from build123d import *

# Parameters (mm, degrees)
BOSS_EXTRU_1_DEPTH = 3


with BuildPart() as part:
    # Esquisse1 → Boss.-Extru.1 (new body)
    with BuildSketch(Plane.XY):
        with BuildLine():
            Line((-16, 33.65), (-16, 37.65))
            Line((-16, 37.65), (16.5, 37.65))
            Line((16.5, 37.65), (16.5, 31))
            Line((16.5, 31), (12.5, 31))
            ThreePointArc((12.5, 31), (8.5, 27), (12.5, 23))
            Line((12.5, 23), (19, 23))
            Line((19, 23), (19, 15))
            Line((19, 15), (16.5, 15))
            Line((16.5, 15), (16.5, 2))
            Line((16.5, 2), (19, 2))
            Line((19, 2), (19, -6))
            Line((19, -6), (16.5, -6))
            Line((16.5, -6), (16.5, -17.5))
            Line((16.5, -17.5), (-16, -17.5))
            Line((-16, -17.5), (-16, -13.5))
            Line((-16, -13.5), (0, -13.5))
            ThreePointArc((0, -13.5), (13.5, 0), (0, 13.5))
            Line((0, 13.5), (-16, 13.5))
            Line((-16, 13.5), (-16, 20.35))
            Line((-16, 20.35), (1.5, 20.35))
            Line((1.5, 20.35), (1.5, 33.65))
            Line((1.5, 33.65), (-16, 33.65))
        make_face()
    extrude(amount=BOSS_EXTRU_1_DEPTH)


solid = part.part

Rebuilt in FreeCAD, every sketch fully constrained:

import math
import FreeCAD as App
import Part
import Sketcher
Q = App.Units.Quantity

doc = App.newDocument("Part")
body = doc.addObject("PartDesign::Body", "Body")

# Sketch on XY plane
sketch1 = body.newObject("Sketcher::SketchObject", "Sketch")
sketch1.AttachmentSupport = (doc.getObject("XY_Plane"), [""])
sketch1.MapMode = "FlatFace"
sketch1.addGeometry(Part.LineSegment(App.Vector(-16, 37.65, 0), App.Vector(-16, 33.65, 0)), False)
sketch1.addGeometry(Part.LineSegment(App.Vector(-16, 33.65, 0), App.Vector(1.5, 33.65, 0)), False)
sketch1.addGeometry(Part.LineSegment(App.Vector(1.5, 33.65, 0), App.Vector(1.5, 20.35, 0)), False)
sketch1.addGeometry(Part.LineSegment(App.Vector(1.5, 20.35, 0), App.Vector(-16, 20.35, 0)), False)
sketch1.addGeometry(Part.LineSegment(App.Vector(-16, 20.35, 0), App.Vector(-16, 13.5, 0)), False)
sketch1.addGeometry(Part.LineSegment(App.Vector(-16, 13.5, 0), App.Vector(0, 13.5, 0)), False)
sketch1.addGeometry(Part.ArcOfCircle(Part.Circle(App.Vector(0, 0, 0), App.Vector(0, 0, 1), 13.5), math.radians(-90), math.radians(90)), False)
sketch1.addGeometry(Part.LineSegment(App.Vector(0, -13.5, 0), App.Vector(-16, -13.5, 0)), False)
sketch1.addGeometry(Part.LineSegment(App.Vector(-16, -13.5, 0), App.Vector(-16, -17.5, 0)), False)
sketch1.addGeometry(Part.LineSegment(App.Vector(-16, -17.5, 0), App.Vector(16.5, -17.5, 0)), False)
sketch1.addGeometry(Part.LineSegment(App.Vector(16.5, -17.5, 0), App.Vector(16.5, -6, 0)), False)
sketch1.addGeometry(Part.LineSegment(App.Vector(16.5, -6, 0), App.Vector(19, -6, 0)), False)
sketch1.addGeometry(Part.LineSegment(App.Vector(19, -6, 0), App.Vector(19, 2, 0)), False)
sketch1.addGeometry(Part.LineSegment(App.Vector(19, 2, 0), App.Vector(16.5, 2, 0)), False)
sketch1.addGeometry(Part.LineSegment(App.Vector(16.5, 2, 0), App.Vector(16.5, 15, 0)), False)
sketch1.addGeometry(Part.LineSegment(App.Vector(16.5, 15, 0), App.Vector(19, 15, 0)), False)
sketch1.addGeometry(Part.LineSegment(App.Vector(19, 15, 0), App.Vector(19, 23, 0)), False)
sketch1.addGeometry(Part.LineSegment(App.Vector(19, 23, 0), App.Vector(12.5, 23, 0)), False)
sketch1.addGeometry(Part.ArcOfCircle(Part.Circle(App.Vector(12.5, 27, 0), App.Vector(0, 0, 1), 4), math.radians(90), math.radians(270)), False)
sketch1.addGeometry(Part.LineSegment(App.Vector(12.5, 31, 0), App.Vector(16.5, 31, 0)), False)
sketch1.addGeometry(Part.LineSegment(App.Vector(16.5, 31, 0), App.Vector(16.5, 37.65, 0)), False)
sketch1.addGeometry(Part.LineSegment(App.Vector(16.5, 37.65, 0), App.Vector(-16, 37.65, 0)), False)
sketch1.addConstraint(Sketcher.Constraint("Coincident", 0, 2, 1, 1))
sketch1.addConstraint(Sketcher.Constraint("Coincident", 1, 2, 2, 1))
sketch1.addConstraint(Sketcher.Constraint("Coincident", 2, 2, 3, 1))
sketch1.addConstraint(Sketcher.Constraint("Coincident", 3, 2, 4, 1))
sketch1.addConstraint(Sketcher.Constraint("Coincident", 4, 2, 5, 1))
sketch1.addConstraint(Sketcher.Constraint("Tangent", 5, 2, 6, 2))
sketch1.addConstraint(Sketcher.Constraint("Tangent", 6, 1, 7, 1))
sketch1.addConstraint(Sketcher.Constraint("Coincident", 7, 2, 8, 1))
sketch1.addConstraint(Sketcher.Constraint("Coincident", 8, 2, 9, 1))
sketch1.addConstraint(Sketcher.Constraint("Coincident", 9, 2, 10, 1))
sketch1.addConstraint(Sketcher.Constraint("Coincident", 10, 2, 11, 1))
sketch1.addConstraint(Sketcher.Constraint("Coincident", 11, 2, 12, 1))
sketch1.addConstraint(Sketcher.Constraint("Coincident", 12, 2, 13, 1))
sketch1.addConstraint(Sketcher.Constraint("Coincident", 13, 2, 14, 1))
sketch1.addConstraint(Sketcher.Constraint("Coincident", 14, 2, 15, 1))
sketch1.addConstraint(Sketcher.Constraint("Coincident", 15, 2, 16, 1))
sketch1.addConstraint(Sketcher.Constraint("Coincident", 16, 2, 17, 1))
sketch1.addConstraint(Sketcher.Constraint("Tangent", 17, 2, 18, 2))
sketch1.addConstraint(Sketcher.Constraint("Tangent", 18, 1, 19, 1))
sketch1.addConstraint(Sketcher.Constraint("Coincident", 19, 2, 20, 1))
sketch1.addConstraint(Sketcher.Constraint("Coincident", 20, 2, 21, 1))
sketch1.addConstraint(Sketcher.Constraint("Coincident", 21, 2, 0, 1))
sketch1.addConstraint(Sketcher.Constraint("Vertical", 0))
sketch1.addConstraint(Sketcher.Constraint("Horizontal", 1))
sketch1.addConstraint(Sketcher.Constraint("Vertical", 2))
sketch1.addConstraint(Sketcher.Constraint("Horizontal", 3))
sketch1.addConstraint(Sketcher.Constraint("Vertical", 4))
sketch1.addConstraint(Sketcher.Constraint("Horizontal", 5))
sketch1.addConstraint(Sketcher.Constraint("Horizontal", 7))
sketch1.addConstraint(Sketcher.Constraint("Vertical", 8))
sketch1.addConstraint(Sketcher.Constraint("Horizontal", 9))
sketch1.addConstraint(Sketcher.Constraint("Vertical", 10))
sketch1.addConstraint(Sketcher.Constraint("Horizontal", 11))
sketch1.addConstraint(Sketcher.Constraint("Vertical", 12))
sketch1.addConstraint(Sketcher.Constraint("Horizontal", 13))
sketch1.addConstraint(Sketcher.Constraint("Vertical", 14))
sketch1.addConstraint(Sketcher.Constraint("Horizontal", 15))
sketch1.addConstraint(Sketcher.Constraint("Vertical", 16))
sketch1.addConstraint(Sketcher.Constraint("Horizontal", 17))
sketch1.addConstraint(Sketcher.Constraint("Horizontal", 19))
sketch1.addConstraint(Sketcher.Constraint("Vertical", 20))
sketch1.addConstraint(Sketcher.Constraint("Horizontal", 21))
sketch1.addConstraint(Sketcher.Constraint("Coincident", 6, 3, -1, 1))
sketch1.addConstraint(Sketcher.Constraint("Vertical", 0, 2, 3, 2))
sketch1.addConstraint(Sketcher.Constraint("Vertical", 4, 2, 7, 2))
sketch1.addConstraint(Sketcher.Constraint("Vertical", 10, 2, 13, 2))
sketch1.addConstraint(Sketcher.Constraint("Vertical", 12, 2, 15, 2))
sketch1.addConstraint(Sketcher.Constraint("Vertical", 14, 2, 19, 2))
sketch1.addConstraint(Sketcher.Constraint("Equal", 19, 0))
sketch1.addConstraint(Sketcher.Constraint("Equal", 0, 8))
sketch1.addConstraint(Sketcher.Constraint("Equal", 12, 16))
sketch1.addConstraint(Sketcher.Constraint("Radius", 18, Q("4 mm")))
sketch1.addConstraint(Sketcher.Constraint("Radius", 6, Q("13.5 mm")))
sketch1.addConstraint(Sketcher.Constraint("DistanceX", 5, 1, 5, 2, Q("16 mm")))
sketch1.addConstraint(Sketcher.Constraint("DistanceX", 19, 1, 19, 2, Q("4 mm")))
sketch1.addConstraint(Sketcher.Constraint("DistanceY", 12, 1, 12, 2, Q("8 mm")))
sketch1.addConstraint(Sketcher.Constraint("DistanceY", 14, 1, 14, 2, Q("13 mm")))
sketch1.addConstraint(Sketcher.Constraint("DistanceX", 1, 1, 1, 2, Q("17.5 mm")))
sketch1.addConstraint(Sketcher.Constraint("DistanceX", 9, 1, 9, 2, Q("32.5 mm")))
sketch1.addConstraint(Sketcher.Constraint("DistanceX", 11, 1, 11, 2, Q("2.5 mm")))
sketch1.addConstraint(Sketcher.Constraint("DistanceY", 2, 2, 2, 1, Q("13.3 mm")))
sketch1.addConstraint(Sketcher.Constraint("DistanceY", 10, 1, 10, 2, Q("11.5 mm")))
sketch1.addConstraint(Sketcher.Constraint("DistanceY", 4, 2, 4, 1, Q("6.85 mm")))
pad1 = body.newObject("PartDesign::Pad", "Pad")
pad1.Profile = sketch1
pad1.Length = 3

doc.recompute()
